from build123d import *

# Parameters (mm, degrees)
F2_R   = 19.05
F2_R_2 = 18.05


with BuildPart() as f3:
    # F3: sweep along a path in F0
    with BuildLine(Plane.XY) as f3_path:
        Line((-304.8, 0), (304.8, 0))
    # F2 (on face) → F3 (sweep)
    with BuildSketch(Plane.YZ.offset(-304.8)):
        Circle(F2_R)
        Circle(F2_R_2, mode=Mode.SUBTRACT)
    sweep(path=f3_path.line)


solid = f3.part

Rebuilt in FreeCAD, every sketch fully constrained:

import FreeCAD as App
import Part
import Sketcher

V = App.Vector
Q = App.Units.Quantity

doc = App.newDocument("Part")
body = doc.addObject("PartDesign::Body", "Body")

# Sketch on YZ plane
sketch1 = doc.addObject("Sketcher::SketchObject", "Sketch")
body.addObject(sketch1)
sketch1.AttachmentSupport = (doc.YZ_Plane, [""])
sketch1.MapMode = "FlatFace"
sketch1.AttachmentOffset = App.Placement(V(0, 0, -12 * 25.4), App.Rotation())
sketch1.addGeometry([
    Part.Circle(V(0, 0, 0), V(0, 0, 1), 19.05),
    Part.Circle(V(0, 0, 0), V(0, 0, 1), 18.05),
], False)
sketch1.addConstraint([
    Sketcher.Constraint("Coincident", 0, 3, -1, 1),
    Sketcher.Constraint("Coincident", 1, 3, -1, 1),
    Sketcher.Constraint("Diameter", 0, Q("1.5 in")),
    Sketcher.Constraint("Diameter", 1, 36.1),
])

# Sketch on XY plane
sketch2 = doc.addObject("Sketcher::SketchObject", "Sketch001")
body.addObject(sketch2)
sketch2.AttachmentSupport = (doc.XY_Plane, [""])
sketch2.MapMode = "FlatFace"
sketch2.addGeometry(Part.LineSegment(V(-304.8, 0, 0), V(304.8, 0, 0)), False)
sketch2.addConstraint([
    Sketcher.Constraint("Horizontal", 0),
    Sketcher.Constraint("Symmetric", 0, 1, 0, 2, -1, 1),
    Sketcher.Constraint("DistanceX", 0, 1, 0, 2, Q("24 in")),
])
doc.recompute()

additivepipe = doc.addObject("PartDesign::AdditivePipe", "AdditivePipe")
body.addObject(additivepipe)
additivepipe.Profile = sketch1
additivepipe.Spine = (sketch2, ["Edge1"])

doc.recompute()
